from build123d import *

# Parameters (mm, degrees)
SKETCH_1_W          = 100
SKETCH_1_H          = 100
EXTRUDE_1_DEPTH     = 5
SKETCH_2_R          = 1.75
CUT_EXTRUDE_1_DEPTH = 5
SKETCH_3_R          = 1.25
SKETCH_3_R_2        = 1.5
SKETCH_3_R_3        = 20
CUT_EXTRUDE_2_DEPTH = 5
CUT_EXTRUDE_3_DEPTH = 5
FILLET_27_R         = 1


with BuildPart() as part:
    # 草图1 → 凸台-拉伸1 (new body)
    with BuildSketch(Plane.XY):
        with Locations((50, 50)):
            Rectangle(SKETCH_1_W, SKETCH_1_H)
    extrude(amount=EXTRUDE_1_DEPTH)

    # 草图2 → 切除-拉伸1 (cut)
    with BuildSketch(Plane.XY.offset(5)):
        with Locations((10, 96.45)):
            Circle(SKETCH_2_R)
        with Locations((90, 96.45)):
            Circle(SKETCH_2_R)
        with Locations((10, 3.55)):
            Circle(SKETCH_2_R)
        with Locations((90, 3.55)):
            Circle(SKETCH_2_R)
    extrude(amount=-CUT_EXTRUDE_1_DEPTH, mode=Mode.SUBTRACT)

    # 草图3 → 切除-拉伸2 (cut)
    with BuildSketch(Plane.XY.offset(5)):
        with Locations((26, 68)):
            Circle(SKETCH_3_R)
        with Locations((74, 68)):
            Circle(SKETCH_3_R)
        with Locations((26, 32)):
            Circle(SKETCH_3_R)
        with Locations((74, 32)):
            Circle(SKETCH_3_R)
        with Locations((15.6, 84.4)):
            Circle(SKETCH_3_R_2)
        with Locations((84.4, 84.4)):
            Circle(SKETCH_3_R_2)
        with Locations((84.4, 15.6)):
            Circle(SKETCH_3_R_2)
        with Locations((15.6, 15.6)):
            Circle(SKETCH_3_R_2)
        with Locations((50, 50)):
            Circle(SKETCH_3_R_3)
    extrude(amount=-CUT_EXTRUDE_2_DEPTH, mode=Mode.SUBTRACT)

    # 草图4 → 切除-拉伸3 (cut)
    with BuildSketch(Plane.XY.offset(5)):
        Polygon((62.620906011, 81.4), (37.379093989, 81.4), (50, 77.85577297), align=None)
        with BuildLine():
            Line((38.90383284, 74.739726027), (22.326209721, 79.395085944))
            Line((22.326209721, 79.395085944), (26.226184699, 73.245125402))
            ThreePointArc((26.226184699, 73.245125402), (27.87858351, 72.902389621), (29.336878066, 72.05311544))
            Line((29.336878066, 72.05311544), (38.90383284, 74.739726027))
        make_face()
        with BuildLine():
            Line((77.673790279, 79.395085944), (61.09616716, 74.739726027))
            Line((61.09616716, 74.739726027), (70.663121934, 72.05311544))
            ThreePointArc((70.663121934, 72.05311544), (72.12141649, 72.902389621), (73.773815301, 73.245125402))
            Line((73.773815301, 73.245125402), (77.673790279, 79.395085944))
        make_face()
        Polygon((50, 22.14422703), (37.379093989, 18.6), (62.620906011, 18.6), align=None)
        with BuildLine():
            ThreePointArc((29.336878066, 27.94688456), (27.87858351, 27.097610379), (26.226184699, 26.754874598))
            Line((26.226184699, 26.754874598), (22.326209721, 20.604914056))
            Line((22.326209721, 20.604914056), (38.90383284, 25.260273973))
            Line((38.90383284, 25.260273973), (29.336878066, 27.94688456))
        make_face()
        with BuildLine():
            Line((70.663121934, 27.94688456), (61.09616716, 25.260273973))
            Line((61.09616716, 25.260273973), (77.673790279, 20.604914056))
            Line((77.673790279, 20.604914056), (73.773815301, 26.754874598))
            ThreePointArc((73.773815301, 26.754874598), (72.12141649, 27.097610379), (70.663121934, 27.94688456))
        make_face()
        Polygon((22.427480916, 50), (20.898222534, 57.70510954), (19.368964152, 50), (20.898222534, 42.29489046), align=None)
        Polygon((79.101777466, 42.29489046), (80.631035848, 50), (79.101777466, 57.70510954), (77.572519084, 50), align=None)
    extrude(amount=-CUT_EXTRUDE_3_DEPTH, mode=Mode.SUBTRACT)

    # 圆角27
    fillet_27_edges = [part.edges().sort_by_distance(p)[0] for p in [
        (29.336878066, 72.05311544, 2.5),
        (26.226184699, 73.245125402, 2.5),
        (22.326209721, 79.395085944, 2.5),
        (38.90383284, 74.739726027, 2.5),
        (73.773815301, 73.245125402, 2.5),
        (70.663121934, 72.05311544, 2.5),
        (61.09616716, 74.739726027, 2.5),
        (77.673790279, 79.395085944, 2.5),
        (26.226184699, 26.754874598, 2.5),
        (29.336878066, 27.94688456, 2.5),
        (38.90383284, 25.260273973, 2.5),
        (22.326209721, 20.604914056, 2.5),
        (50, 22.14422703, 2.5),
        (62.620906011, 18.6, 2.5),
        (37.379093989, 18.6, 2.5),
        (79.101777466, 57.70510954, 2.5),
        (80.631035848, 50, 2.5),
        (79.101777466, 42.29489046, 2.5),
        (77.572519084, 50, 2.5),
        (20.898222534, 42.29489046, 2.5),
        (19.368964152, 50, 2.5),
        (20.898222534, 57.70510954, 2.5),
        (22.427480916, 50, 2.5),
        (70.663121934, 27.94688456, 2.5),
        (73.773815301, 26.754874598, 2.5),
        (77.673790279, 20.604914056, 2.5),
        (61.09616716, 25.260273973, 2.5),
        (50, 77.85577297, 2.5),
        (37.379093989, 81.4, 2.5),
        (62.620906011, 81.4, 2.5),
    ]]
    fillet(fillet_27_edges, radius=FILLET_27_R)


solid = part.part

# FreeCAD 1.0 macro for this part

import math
import FreeCAD as App
import Part
import Sketcher

V = App.Vector


def edges_at(feature, points):
    """Names of the edges that pass closest to the given points."""
    edges = feature.Shape.Edges
    near = lambda p: min(range(len(edges)), key=lambda i: edges[i].distToShape(Part.Vertex(*p))[0])
    return sorted({f"Edge{near(p) + 1}" for p in points})

doc = App.newDocument("Part")
body = doc.addObject("PartDesign::Body", "Body")

sketch1 = body.newObject("Sketcher::SketchObject", "Sketch")
sketch1.AttachmentSupport = (doc.getObject("XY_Plane"), [""])
sketch1.MapMode = "FlatFace"
sketch1.addGeometry([
    Part.LineSegment(V(0, 100, 0), V(0, 0, 0)),
    Part.LineSegment(V(0, 0, 0), V(100, 0, 0)),
    Part.LineSegment(V(100, 0, 0), V(100, 100, 0)),
    Part.LineSegment(V(100, 100, 0), V(0, 100, 0)),
], False)
sketch1.addConstraint([
    Sketcher.Constraint("Coincident", 0, 2, 1, 1),
    Sketcher.Constraint("Coincident", 1, 2, 2, 1),
    Sketcher.Constraint("Coincident", 2, 2, 3, 1),
    Sketcher.Constraint("Coincident", 3, 2, 0, 1),
    Sketcher.Constraint("Vertical", 0),
    Sketcher.Constraint("Horizontal", 1),
    Sketcher.Constraint("Vertical", 2),
    Sketcher.Constraint("Horizontal", 3),
    Sketcher.Constraint("Coincident", 0, 2, -1, 1),
    Sketcher.Constraint("Equal", 3, 0),
    Sketcher.Constraint("DistanceX", 1, 1, 1, 2, 100.0),
])
pad1 = body.newObject("PartDesign::Pad", "Pad")
pad1.Profile = sketch1
pad1.Length = 5

sketch2 = body.newObject("Sketcher::SketchObject", "Sketch001")
sketch2.AttachmentSupport = (doc.getObject("XY_Plane"), [""])
sketch2.MapMode = "FlatFace"
sketch2.AttachmentOffset = App.Placement(V(0, 0, 5), App.Rotation())
sketch2.addGeometry([
    Part.Circle(V(10, 96.5, 0), V(0, 0, 1), 1.8),
    Part.Circle(V(90, 96.5, 0), V(0, 0, 1), 1.8),
    Part.Circle(V(10, 3.5, 0), V(0, 0, 1), 1.8),
    Part.Circle(V(90, 3.5, 0), V(0, 0, 1), 1.8),
], False)
sketch2.addConstraint([
    Sketcher.Constraint("Equal", 0, 1),
    Sketcher.Constraint("Equal", 1, 2),
    Sketcher.Constraint("Equal", 2, 3),
    Sketcher.Constraint("Horizontal", 0, 3, 1, 3),
    Sketcher.Constraint("Horizontal", 2, 3, 3, 3),
    Sketcher.Constraint("Vertical", 0, 3, 2, 3),
    Sketcher.Constraint("Vertical", 1, 3, 3, 3),
    Sketcher.Constraint("Diameter", 0, 3.5),
    Sketcher.Constraint("DistanceX", -1, 1, 0, 3, 10.0),
    Sketcher.Constraint("DistanceX", -1, 1, 1, 3, 90.0),
    Sketcher.Constraint("DistanceY", 2, 3, 0, 3, 92.9),
    Sketcher.Constraint("DistanceY", -1, 1, 0, 3, 96.45),
])
pocket1 = body.newObject("PartDesign::Pocket", "Pocket")
pocket1.Profile = sketch2
pocket1.Length = 5

sketch3 = body.newObject("Sketcher::SketchObject", "Sketch002")
sketch3.AttachmentSupport = (doc.getObject("XY_Plane"), [""])
sketch3.MapMode = "FlatFace"
sketch3.AttachmentOffset = App.Placement(V(0, 0, 5), App.Rotation())
sketch3.addGeometry([
    Part.Circle(V(26, 68, 0), V(0, 0, 1), 1.2),
    Part.Circle(V(74, 68, 0), V(0, 0, 1), 1.2),
    Part.Circle(V(26, 32, 0), V(0, 0, 1), 1.2),
    Part.Circle(V(74, 32, 0), V(0, 0, 1), 1.2),
    Part.Circle(V(15.6, 84.4, 0), V(0, 0, 1), 1.5),
    Part.Circle(V(84.4, 84.4, 0), V(0, 0, 1), 1.5),
    Part.Circle(V(84.4, 15.6, 0), V(0, 0, 1), 1.5),
    Part.Circle(V(15.6, 15.6, 0), V(0, 0, 1), 1.5),
    Part.Circle(V(50, 50, 0), V(0, 0, 1), 20),
], False)
sketch3.addConstraint([
    Sketcher.Constraint("Equal", 0, 1),
    Sketcher.Constraint("Equal", 1, 2),
    Sketcher.Constraint("Equal", 2, 3),
    Sketcher.Constraint("Equal", 4, 5),
    Sketcher.Constraint("Equal", 5, 6),
    Sketcher.Constraint("Equal", 6, 7),
    Sketcher.Constraint("Horizontal", 0, 3, 1, 3),
    Sketcher.Constraint("Horizontal", 2, 3, 3, 3),
    Sketcher.Constraint("Horizontal", 4, 3, 5, 3),
    Sketcher.Constraint("Horizontal", 6, 3, 7, 3),
    Sketcher.Constraint("Vertical", 0, 3, 2, 3),
    Sketcher.Constraint("Vertical", 1, 3, 3, 3),
    Sketcher.Constraint("Vertical", 5, 3, 6, 3),
    Sketcher.Constraint("Vertical", 4, 3, 7, 3),
    Sketcher.Constraint("Diameter", 4, 3.0),
    Sketcher.Constraint("Diameter", 8, 40.0),
    Sketcher.Constraint("Diameter", 0, 2.5),
    Sketcher.Constraint("DistanceX", -1, 1, 0, 3, 26.0),
    Sketcher.Constraint("DistanceY", -1, 1, 0, 3, 68.0),
    Sketcher.Constraint("DistanceX", -1, 1, 1, 3, 74.0),
    Sketcher.Constraint("DistanceY", -1, 1, 2, 3, 32.0),
    Sketcher.Constraint("DistanceX", -1, 1, 8, 3, 50.0),
    Sketcher.Constraint("DistanceY", -1, 1, 8, 3, 50.0),
    Sketcher.Constraint("DistanceX", -1, 1, 4, 3, 15.6),
    Sketcher.Constraint("DistanceY", -1, 1, 4, 3, 84.4),
    Sketcher.Constraint("DistanceX", -1, 1, 5, 3, 84.4),
    Sketcher.Constraint("DistanceY", -1, 1, 6, 3, 15.6),
])
pocket2 = body.newObject("PartDesign::Pocket", "Pocket001")
pocket2.Profile = sketch3
pocket2.Length = 5

sketch4 = body.newObject("Sketcher::SketchObject", "Sketch003")
sketch4.AttachmentSupport = (doc.getObject("XY_Plane"), [""])
sketch4.MapMode = "FlatFace"
sketch4.AttachmentOffset = App.Placement(V(0, 0, 5), App.Rotation())
sketch4.addGeometry([
    Part.LineSegment(V(62.6, 81.4, 0), V(37.4, 81.4, 0)),
    Part.LineSegment(V(37.4, 81.4, 0), V(50, 77.9, 0)),
    Part.LineSegment(V(50, 77.9, 0), V(62.6, 81.4, 0)),
    Part.LineSegment(V(38.9, 74.7, 0), V(22.3, 79.4, 0)),
    Part.LineSegment(V(22.3, 79.4, 0), V(26.2, 73.2, 0)),
    Part.ArcOfCircle(Part.Circle(V(26, 68, 0), V(0, 0, 1), 5.2), math.radians(51), math.radians(88)),
    Part.LineSegment(V(29.3, 72.1, 0), V(38.9, 74.7, 0)),
    Part.LineSegment(V(77.7, 79.4, 0), V(61.1, 74.7, 0)),
    Part.LineSegment(V(61.1, 74.7, 0), V(70.7, 72.1, 0)),
    Part.ArcOfCircle(Part.Circle(V(74, 68, 0), V(0, 0, 1), 5.2), math.radians(92), math.radians(129)),
    Part.LineSegment(V(73.8, 73.2, 0), V(77.7, 79.4, 0)),
    Part.LineSegment(V(50, 22.1, 0), V(37.4, 18.6, 0)),
    Part.LineSegment(V(37.4, 18.6, 0), V(62.6, 18.6, 0)),
    Part.LineSegment(V(62.6, 18.6, 0), V(50, 22.1, 0)),
    Part.ArcOfCircle(Part.Circle(V(26, 32, 0), V(0, 0, 1), 5.2), math.radians(-88), math.radians(-51)),
    Part.LineSegment(V(26.2, 26.8, 0), V(22.3, 20.6, 0)),
    Part.LineSegment(V(22.3, 20.6, 0), V(38.9, 25.3, 0)),
    Part.LineSegment(V(38.9, 25.3, 0), V(29.3, 27.9, 0)),
    Part.LineSegment(V(70.7, 27.9, 0), V(61.1, 25.3, 0)),
    Part.LineSegment(V(61.1, 25.3, 0), V(77.7, 20.6, 0)),
    Part.LineSegment(V(77.7, 20.6, 0), V(73.8, 26.8, 0)),
    Part.ArcOfCircle(Part.Circle(V(74, 32, 0), V(0, 0, 1), 5.2), math.radians(-129), math.radians(-92)),
    Part.LineSegment(V(22.4, 50, 0), V(20.9, 57.7, 0)),
    Part.LineSegment(V(20.9, 57.7, 0), V(19.4, 50, 0)),
    Part.LineSegment(V(19.4, 50, 0), V(20.9, 42.3, 0)),
    Part.LineSegment(V(20.9, 42.3, 0), V(22.4, 50, 0)),
    Part.LineSegment(V(79.1, 42.3, 0), V(80.6, 50, 0)),
    Part.LineSegment(V(80.6, 50, 0), V(79.1, 57.7, 0)),
    Part.LineSegment(V(79.1, 57.7, 0), V(77.6, 50, 0)),
    Part.LineSegment(V(77.6, 50, 0), V(79.1, 42.3, 0)),
], False)
sketch4.addConstraint([
    Sketcher.Constraint("Coincident", 0, 2, 1, 1),
    Sketcher.Constraint("Coincident", 1, 2, 2, 1),
    Sketcher.Constraint("Coincident", 2, 2, 0, 1),
    Sketcher.Constraint("Coincident", 3, 2, 4, 1),
    Sketcher.Constraint("Coincident", 4, 2, 5, 2),
    Sketcher.Constraint("Coincident", 5, 1, 6, 1),
    Sketcher.Constraint("Coincident", 6, 2, 3, 1),
    Sketcher.Constraint("Coincident", 7, 2, 8, 1),
    Sketcher.Constraint("Coincident", 8, 2, 9, 2),
    Sketcher.Constraint("Coincident", 9, 1, 10, 1),
    Sketcher.Constraint("Coincident", 10, 2, 7, 1),
    Sketcher.Constraint("Coincident", 11, 2, 12, 1),
    Sketcher.Constraint("Coincident", 12, 2, 13, 1),
    Sketcher.Constraint("Coincident", 13, 2, 11, 1),
    Sketcher.Constraint("Coincident", 14, 1, 15, 1),
    Sketcher.Constraint("Coincident", 15, 2, 16, 1),
    Sketcher.Constraint("Coincident", 16, 2, 17, 1),
    Sketcher.Constraint("Coincident", 17, 2, 14, 2),
    Sketcher.Constraint("Coincident", 18, 2, 19, 1),
    Sketcher.Constraint("Coincident", 19, 2, 20, 1),
    Sketcher.Constraint("Coincident", 20, 2, 21, 2),
    Sketcher.Constraint("Coincident", 21, 1, 18, 1),
    Sketcher.Constraint("Coincident", 22, 2, 23, 1),
    Sketcher.Constraint("Coincident", 23, 2, 24, 1),
    Sketcher.Constraint("Coincident", 24, 2, 25, 1),
    Sketcher.Constraint("Coincident", 25, 2, 22, 1),
    Sketcher.Constraint("Coincident", 26, 2, 27, 1),
    Sketcher.Constraint("Coincident", 27, 2, 28, 1),
    Sketcher.Constraint("Coincident", 28, 2, 29, 1),
    Sketcher.Constraint("Coincident", 29, 2, 26, 1),
    Sketcher.Constraint("Horizontal", 0),
    Sketcher.Constraint("Horizontal", 12),
    Sketcher.Constraint("Equal", 5, 9),
    Sketcher.Constraint("Equal", 9, 14),
    Sketcher.Constraint("Equal", 14, 21),
    Sketcher.Constraint("Parallel", 1, 3),
    Sketcher.Constraint("Parallel", 2, 6),
    Sketcher.Constraint("Parallel", 6, 7),
    Sketcher.Constraint("Parallel", 3, 8),
    Sketcher.Constraint("Parallel", 7, 11),
    Sketcher.Constraint("Parallel", 8, 13),
    Sketcher.Constraint("Parallel", 10, 15),
    Sketcher.Constraint("Parallel", 11, 16),
    Sketcher.Constraint("Parallel", 13, 17),
    Sketcher.Constraint("Parallel", 16, 18),
    Sketcher.Constraint("Parallel", 17, 19),
    Sketcher.Constraint("Parallel", 4, 20),
    Sketcher.Constraint("Parallel", 22, 24),
    Sketcher.Constraint("Parallel", 23, 25),
    Sketcher.Constraint("Parallel", 25, 26),
    Sketcher.Constraint("Parallel", 24, 27),
    Sketcher.Constraint("Parallel", 26, 28),
    Sketcher.Constraint("Parallel", 27, 29),
    Sketcher.Constraint("Horizontal", 5, 3, 9, 3),
    Sketcher.Constraint("Horizontal", 14, 3, 21, 3),
    Sketcher.Constraint("Horizontal", 6, 2, 7, 2),
    Sketcher.Constraint("Horizontal", 5, 1, 8, 2),
    Sketcher.Constraint("Horizontal", 4, 2, 9, 1),
    Sketcher.Constraint("Horizontal", 3, 2, 10, 2),
    Sketcher.Constraint("Horizontal", 16, 2, 18, 2),
    Sketcher.Constraint("Horizontal", 15, 2, 19, 2),
    Sketcher.Constraint("Horizontal", 14, 1, 20, 2),
    Sketcher.Constraint("Horizontal", 23, 2, 25, 2),
    Sketcher.Constraint("Horizontal", 25, 2, 26, 2),
    Sketcher.Constraint("Horizontal", 22, 2, 27, 2),
    Sketcher.Constraint("Horizontal", 26, 2, 28, 2),
    Sketcher.Constraint("Vertical", 5, 3, 14, 3),
    Sketcher.Constraint("Vertical", 9, 3, 21, 3),
    Sketcher.Constraint("Vertical", 0, 2, 11, 2),
    Sketcher.Constraint("Vertical", 2, 2, 12, 2),
    Sketcher.Constraint("Vertical", 1, 2, 13, 2),
    Sketcher.Constraint("Vertical", 4, 2, 14, 1),
    Sketcher.Constraint("Vertical", 3, 2, 15, 2),
    Sketcher.Constraint("Vertical", 6, 2, 16, 2),
    Sketcher.Constraint("Vertical", 22, 2, 24, 2),
    Sketcher.Constraint("Radius", 5, 5.25),
    Sketcher.Constraint("DistanceX", -1, 1, 5, 3, 26.0),
    Sketcher.Constraint("DistanceY", -1, 1, 5, 3, 68.0),
    Sketcher.Constraint("DistanceX", -1, 1, 9, 3, 74.0),
    Sketcher.Constraint("DistanceY", -1, 1, 14, 3, 32.0),
    Sketcher.Constraint("DistanceX", -1, 1, 1, 2, 50.0),
    Sketcher.Constraint("DistanceY", -1, 1, 23, 2, 50.0),
    Sketcher.Constraint("DistanceY", -1, 1, 0, 2, 81.4),
    Sketcher.Constraint("DistanceY", -1, 1, 11, 2, 18.6),
    Sketcher.Constraint("DistanceY", 4, 2, 6, 2, 1.494601),
    Sketcher.Constraint("Distance", 1, 13.109112),
    Sketcher.Constraint("DistanceX", 0, 2, 0, 1, 25.241812),
    Sketcher.Constraint("DistanceX", -1, 1, 3, 2, 22.32621),
    Sketcher.Constraint("DistanceX", -1, 1, 5, 1, 29.336878),
    Sketcher.Constraint("DistanceY", -1, 1, 22, 2, 57.70511),
    Sketcher.Constraint("DistanceX", -1, 1, 25, 2, 22.427481),
    Sketcher.Constraint("DistanceX", -1, 1, 28, 2, 77.572519),
    Sketcher.Constraint("DistanceY", 4, 2, 3, 2, 6.149961),
    Sketcher.Constraint("DistanceX", 22, 2, 6, 2, 18.00561),
])
pocket3 = body.newObject("PartDesign::Pocket", "Pocket002")
pocket3.Profile = sketch4
pocket3.Length = 5
doc.recompute()

fillet = body.newObject("PartDesign::Fillet", "Fillet")
fillet.Base = (pocket3, edges_at(pocket3, [
    (29.337, 72.053, 2.5),
    (26.226, 73.245, 2.5),
    (22.326, 79.395, 2.5),
    (38.904, 74.74, 2.5),
    (73.774, 73.245, 2.5),
    (70.663, 72.053, 2.5),
    (61.096, 74.74, 2.5),
    (77.674, 79.395, 2.5),
    (26.226, 26.755, 2.5),
    (29.337, 27.947, 2.5),
    (38.904, 25.26, 2.5),
    (22.326, 20.605, 2.5),
    (50, 22.144, 2.5),
    (62.621, 18.6, 2.5),
    (37.379, 18.6, 2.5),
    (79.102, 57.705, 2.5),
    (80.631, 50, 2.5),
    (79.102, 42.295, 2.5),
    (77.573, 50, 2.5),
    (20.898, 42.295, 2.5),
    (19.369, 50, 2.5),
    (20.898, 57.705, 2.5),
    (22.427, 50, 2.5),
    (70.663, 27.947, 2.5),
    (73.774, 26.755, 2.5),
    (77.674, 20.605, 2.5),
    (61.096, 25.26, 2.5),
    (50, 77.856, 2.5),
    (37.379, 81.4, 2.5),
    (62.621, 81.4, 2.5),
]))
fillet.Radius = 1

doc.recompute()
